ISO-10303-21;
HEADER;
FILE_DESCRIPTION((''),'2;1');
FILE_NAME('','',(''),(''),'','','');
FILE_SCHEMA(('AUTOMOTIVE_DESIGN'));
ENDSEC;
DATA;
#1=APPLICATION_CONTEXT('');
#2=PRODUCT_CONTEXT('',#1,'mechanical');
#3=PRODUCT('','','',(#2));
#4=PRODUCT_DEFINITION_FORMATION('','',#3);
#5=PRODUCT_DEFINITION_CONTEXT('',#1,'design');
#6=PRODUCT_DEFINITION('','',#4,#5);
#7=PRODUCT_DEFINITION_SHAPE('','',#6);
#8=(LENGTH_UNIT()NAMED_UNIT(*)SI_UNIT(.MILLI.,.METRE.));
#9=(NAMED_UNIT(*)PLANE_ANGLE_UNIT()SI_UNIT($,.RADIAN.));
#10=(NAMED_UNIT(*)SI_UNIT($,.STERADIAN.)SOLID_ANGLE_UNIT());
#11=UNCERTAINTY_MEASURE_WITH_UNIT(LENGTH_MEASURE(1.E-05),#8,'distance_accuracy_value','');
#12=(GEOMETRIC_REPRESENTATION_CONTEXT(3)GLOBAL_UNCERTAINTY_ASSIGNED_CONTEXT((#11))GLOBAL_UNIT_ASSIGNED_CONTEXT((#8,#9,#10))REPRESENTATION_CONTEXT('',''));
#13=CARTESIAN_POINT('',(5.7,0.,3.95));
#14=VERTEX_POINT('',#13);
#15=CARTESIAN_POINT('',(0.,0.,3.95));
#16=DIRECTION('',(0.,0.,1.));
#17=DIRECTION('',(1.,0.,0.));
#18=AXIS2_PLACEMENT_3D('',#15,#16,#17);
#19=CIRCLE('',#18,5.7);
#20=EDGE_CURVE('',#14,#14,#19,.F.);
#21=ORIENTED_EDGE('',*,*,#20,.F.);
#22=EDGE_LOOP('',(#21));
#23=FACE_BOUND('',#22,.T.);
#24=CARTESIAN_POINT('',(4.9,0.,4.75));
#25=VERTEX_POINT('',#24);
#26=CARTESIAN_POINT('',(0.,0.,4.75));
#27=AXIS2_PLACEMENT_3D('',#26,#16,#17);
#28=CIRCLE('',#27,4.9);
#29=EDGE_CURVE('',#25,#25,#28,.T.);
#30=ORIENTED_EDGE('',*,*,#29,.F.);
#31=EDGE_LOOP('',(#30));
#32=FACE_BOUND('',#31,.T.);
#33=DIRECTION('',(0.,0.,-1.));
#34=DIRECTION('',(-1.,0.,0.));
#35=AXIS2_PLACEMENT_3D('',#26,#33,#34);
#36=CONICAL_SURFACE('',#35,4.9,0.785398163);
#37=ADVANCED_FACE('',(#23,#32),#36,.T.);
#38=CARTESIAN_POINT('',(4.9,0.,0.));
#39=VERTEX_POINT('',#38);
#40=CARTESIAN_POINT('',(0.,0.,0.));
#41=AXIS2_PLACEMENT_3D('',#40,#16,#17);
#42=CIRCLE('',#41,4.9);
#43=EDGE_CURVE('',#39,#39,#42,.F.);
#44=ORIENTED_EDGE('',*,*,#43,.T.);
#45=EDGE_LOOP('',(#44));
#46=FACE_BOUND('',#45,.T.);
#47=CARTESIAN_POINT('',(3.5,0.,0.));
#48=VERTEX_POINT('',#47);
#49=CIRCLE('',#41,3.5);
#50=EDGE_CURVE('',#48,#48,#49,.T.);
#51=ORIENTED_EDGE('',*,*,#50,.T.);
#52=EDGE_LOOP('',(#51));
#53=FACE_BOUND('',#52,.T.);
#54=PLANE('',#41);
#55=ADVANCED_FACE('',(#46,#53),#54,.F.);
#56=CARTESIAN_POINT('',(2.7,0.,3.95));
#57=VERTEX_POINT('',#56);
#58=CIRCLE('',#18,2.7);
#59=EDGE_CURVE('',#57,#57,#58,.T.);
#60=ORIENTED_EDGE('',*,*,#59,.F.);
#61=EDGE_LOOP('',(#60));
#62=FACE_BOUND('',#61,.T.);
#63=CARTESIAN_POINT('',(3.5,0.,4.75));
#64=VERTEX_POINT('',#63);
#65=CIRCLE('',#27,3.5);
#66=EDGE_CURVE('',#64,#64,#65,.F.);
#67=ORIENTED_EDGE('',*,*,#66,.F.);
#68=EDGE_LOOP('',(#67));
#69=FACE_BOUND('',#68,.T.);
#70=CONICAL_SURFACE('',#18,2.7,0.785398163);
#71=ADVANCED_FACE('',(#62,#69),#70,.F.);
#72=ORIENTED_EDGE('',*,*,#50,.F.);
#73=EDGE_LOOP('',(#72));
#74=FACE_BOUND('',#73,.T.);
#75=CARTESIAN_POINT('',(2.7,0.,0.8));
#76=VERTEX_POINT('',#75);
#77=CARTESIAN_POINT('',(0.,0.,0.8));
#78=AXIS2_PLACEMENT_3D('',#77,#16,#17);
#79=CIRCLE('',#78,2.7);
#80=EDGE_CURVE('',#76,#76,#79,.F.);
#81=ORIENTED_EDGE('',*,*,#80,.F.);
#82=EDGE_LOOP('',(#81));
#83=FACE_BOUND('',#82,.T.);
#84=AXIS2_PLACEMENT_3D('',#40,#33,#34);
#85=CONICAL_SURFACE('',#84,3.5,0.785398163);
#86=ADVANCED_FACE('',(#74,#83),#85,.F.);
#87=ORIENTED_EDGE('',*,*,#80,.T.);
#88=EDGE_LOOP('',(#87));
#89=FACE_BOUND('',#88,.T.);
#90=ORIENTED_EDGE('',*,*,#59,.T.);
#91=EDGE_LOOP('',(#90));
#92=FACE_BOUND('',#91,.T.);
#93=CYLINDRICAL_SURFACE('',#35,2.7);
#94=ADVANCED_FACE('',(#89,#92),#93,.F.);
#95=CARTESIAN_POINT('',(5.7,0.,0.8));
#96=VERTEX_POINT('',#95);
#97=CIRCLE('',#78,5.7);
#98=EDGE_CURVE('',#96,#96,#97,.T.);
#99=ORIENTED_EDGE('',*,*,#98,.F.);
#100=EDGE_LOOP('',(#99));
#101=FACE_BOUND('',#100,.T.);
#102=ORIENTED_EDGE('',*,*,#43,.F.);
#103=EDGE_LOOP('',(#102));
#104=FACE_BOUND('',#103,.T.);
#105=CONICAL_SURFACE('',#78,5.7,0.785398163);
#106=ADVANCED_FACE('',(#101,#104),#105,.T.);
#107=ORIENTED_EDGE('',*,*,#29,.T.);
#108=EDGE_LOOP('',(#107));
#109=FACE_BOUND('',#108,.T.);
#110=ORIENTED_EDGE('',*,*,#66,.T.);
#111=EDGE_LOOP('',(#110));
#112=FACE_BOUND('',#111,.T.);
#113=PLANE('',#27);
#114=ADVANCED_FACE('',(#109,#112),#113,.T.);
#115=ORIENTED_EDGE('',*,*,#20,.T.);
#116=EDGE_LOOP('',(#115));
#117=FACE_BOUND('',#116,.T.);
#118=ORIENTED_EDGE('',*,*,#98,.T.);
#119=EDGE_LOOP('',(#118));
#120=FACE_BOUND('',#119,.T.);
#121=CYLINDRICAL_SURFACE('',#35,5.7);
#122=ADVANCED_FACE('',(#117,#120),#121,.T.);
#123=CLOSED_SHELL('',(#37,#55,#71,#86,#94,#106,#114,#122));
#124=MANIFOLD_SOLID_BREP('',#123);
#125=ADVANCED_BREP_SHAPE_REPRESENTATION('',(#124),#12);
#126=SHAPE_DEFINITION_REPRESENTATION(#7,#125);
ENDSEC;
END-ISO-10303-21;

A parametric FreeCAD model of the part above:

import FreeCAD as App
import Part
import Sketcher

V = App.Vector


def edges_at(feature, points):
    """Names of the edges that pass closest to the given points."""
    edges = feature.Shape.Edges
    near = lambda p: min(range(len(edges)), key=lambda i: edges[i].distToShape(Part.Vertex(*p))[0])
    return sorted({f"Edge{near(p) + 1}" for p in points})

doc = App.newDocument("Part")
body = doc.addObject("PartDesign::Body", "Body")

# Sketch on XY plane
sketch1 = body.newObject("Sketcher::SketchObject", "Sketch")
sketch1.AttachmentSupport = (doc.getObject("XY_Plane"), [""])
sketch1.MapMode = "FlatFace"
sketch1.addGeometry([
    Part.Circle(V(0, 0, 0), V(0, 0, 1), 5.7),
    Part.Circle(V(0, 0, 0), V(0, 0, 1), 2.7),
], False)
sketch1.addConstraint([
    Sketcher.Constraint("Coincident", 0, 3, -1, 1),
    Sketcher.Constraint("Coincident", 1, 3, -1, 1),
    Sketcher.Constraint("Diameter", 0, 11.4),
    Sketcher.Constraint("Diameter", 1, 5.4),
])
pad1 = body.newObject("PartDesign::Pad", "Pad")
pad1.Profile = sketch1
pad1.Length = 4.75
doc.recompute()

chamfer = body.newObject("PartDesign::Chamfer", "Chamfer")
chamfer.Base = (pad1, edges_at(pad1, [
    (-5.7, 0, 0),
    (-5.7, 0, 4.75),
    (-2.7, 0, 0),
    (-2.7, 0, 4.75),
]))
chamfer.Size = 0.8

doc.recompute()
